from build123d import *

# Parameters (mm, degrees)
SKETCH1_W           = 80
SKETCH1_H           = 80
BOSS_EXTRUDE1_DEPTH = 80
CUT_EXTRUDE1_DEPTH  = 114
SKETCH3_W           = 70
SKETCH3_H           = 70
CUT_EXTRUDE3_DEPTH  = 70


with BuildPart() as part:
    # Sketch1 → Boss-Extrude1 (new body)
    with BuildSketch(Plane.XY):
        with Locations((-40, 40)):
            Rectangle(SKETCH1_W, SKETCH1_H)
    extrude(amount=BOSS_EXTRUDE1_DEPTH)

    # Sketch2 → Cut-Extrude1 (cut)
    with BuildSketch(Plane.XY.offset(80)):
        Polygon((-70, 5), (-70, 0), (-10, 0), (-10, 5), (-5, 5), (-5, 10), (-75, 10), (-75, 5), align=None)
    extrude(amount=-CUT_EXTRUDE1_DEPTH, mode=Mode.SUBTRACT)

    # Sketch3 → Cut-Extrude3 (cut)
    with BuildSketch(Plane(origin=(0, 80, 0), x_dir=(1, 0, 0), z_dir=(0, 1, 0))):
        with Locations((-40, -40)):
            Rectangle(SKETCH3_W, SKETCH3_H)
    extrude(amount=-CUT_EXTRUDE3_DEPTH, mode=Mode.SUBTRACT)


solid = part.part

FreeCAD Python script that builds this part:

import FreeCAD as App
import Part
import Sketcher


def add_polygon(sketch, points):
    """Adds a closed chain of lines whose ends are joined by coincident constraints."""
    first, n = sketch.GeometryCount, len(points)
    for a, b in zip(points, points[1:] + points[:1]):
        sketch.addGeometry(Part.LineSegment(App.Vector(*a, 0), App.Vector(*b, 0)), False)
    for i in range(n):
        sketch.addConstraint(Sketcher.Constraint("Coincident", first + i, 2, first + (i + 1) % n, 1))

doc = App.newDocument("Part")
body = doc.addObject("PartDesign::Body", "Body")

# Sketch on XY plane
sketch1 = body.newObject("Sketcher::SketchObject", "Sketch")
sketch1.AttachmentSupport = (doc.getObject("XY_Plane"), [""])
sketch1.MapMode = "FlatFace"
add_polygon(sketch1, [(-80, 80), (-80, 0), (0, 0), (0, 80)])  # lines 0-3
sketch1.addConstraint([
    Sketcher.Constraint("Vertical", 0),
    Sketcher.Constraint("Horizontal", 1),
    Sketcher.Constraint("Vertical", 2),
    Sketcher.Constraint("Horizontal", 3),
    Sketcher.Constraint("Coincident", 1, 2, -1, 1),
    Sketcher.Constraint("Equal", 3, 0),
    Sketcher.Constraint("DistanceX", 1, 1, 1, 2, 80.0),
])
pad1 = body.newObject("PartDesign::Pad", "Pad")
pad1.Profile = sketch1
pad1.Length = 80

# Sketch on XY plane
sketch2 = body.newObject("Sketcher::SketchObject", "Sketch001")
sketch2.AttachmentSupport = (doc.getObject("XY_Plane"), [""])
sketch2.MapMode = "FlatFace"
sketch2.AttachmentOffset = App.Placement(App.Vector(0, 0, 80), App.Rotation())
add_polygon(sketch2, [(-70, 5), (-70, 0), (-10, 0), (-10, 5), (-5, 5), (-5, 10), (-75, 10), (-75, 5)])  # lines 0-7
sketch2.addConstraint([
    Sketcher.Constraint("Vertical", 0),
    Sketcher.Constraint("Horizontal", 1),
    Sketcher.Constraint("Vertical", 2),
    Sketcher.Constraint("Horizontal", 3),
    Sketcher.Constraint("Vertical", 4),
    Sketcher.Constraint("Horizontal", 5),
    Sketcher.Constraint("Vertical", 6),
    Sketcher.Constraint("Horizontal", 7),
    Sketcher.Constraint("PointOnObject", 0, 2, -1),
    Sketcher.Constraint("Horizontal", 3, 2, 6, 2),
    Sketcher.Constraint("Equal", 3, 7),
    Sketcher.Constraint("Equal", 7, 0),
    Sketcher.Constraint("Equal", 2, 4),
    Sketcher.Constraint("DistanceX", 1, 1, 1, 2, 60.0),
    Sketcher.Constraint("DistanceX", 3, 1, 3, 2, 5.0),
    Sketcher.Constraint("DistanceX", 0, 2, -1, 1, 70.0),
])
pocket1 = body.newObject("PartDesign::Pocket", "Pocket")
pocket1.Profile = sketch2
pocket1.Length = 114

# Sketch on XZ plane
sketch3 = body.newObject("Sketcher::SketchObject", "Sketch002")
sketch3.AttachmentSupport = (doc.getObject("XZ_Plane"), [""])
sketch3.MapMode = "FlatFace"
sketch3.AttachmentOffset = App.Placement(App.Vector(0, 0, -80), App.Rotation())
add_polygon(sketch3, [(-75, 5), (-75, 75), (-5, 75), (-5, 5)])  # lines 0-3
sketch3.addConstraint([
    Sketcher.Constraint("Vertical", 0),
    Sketcher.Constraint("Horizontal", 1),
    Sketcher.Constraint("Vertical", 2),
    Sketcher.Constraint("Horizontal", 3),
    Sketcher.Constraint("Equal", 3, 0),
    Sketcher.Constraint("DistanceX", 1, 1, 1, 2, 70.0),
    Sketcher.Constraint("DistanceX", 0, 2, -1, 1, 75.0),
    Sketcher.Constraint("DistanceY", -1, 1, 0, 2, 75.0),
])
pocket2 = body.newObject("PartDesign::Pocket", "Pocket001")
pocket2.Profile = sketch3
pocket2.Length = 70
pocket2.Reversed = True

doc.recompute()
